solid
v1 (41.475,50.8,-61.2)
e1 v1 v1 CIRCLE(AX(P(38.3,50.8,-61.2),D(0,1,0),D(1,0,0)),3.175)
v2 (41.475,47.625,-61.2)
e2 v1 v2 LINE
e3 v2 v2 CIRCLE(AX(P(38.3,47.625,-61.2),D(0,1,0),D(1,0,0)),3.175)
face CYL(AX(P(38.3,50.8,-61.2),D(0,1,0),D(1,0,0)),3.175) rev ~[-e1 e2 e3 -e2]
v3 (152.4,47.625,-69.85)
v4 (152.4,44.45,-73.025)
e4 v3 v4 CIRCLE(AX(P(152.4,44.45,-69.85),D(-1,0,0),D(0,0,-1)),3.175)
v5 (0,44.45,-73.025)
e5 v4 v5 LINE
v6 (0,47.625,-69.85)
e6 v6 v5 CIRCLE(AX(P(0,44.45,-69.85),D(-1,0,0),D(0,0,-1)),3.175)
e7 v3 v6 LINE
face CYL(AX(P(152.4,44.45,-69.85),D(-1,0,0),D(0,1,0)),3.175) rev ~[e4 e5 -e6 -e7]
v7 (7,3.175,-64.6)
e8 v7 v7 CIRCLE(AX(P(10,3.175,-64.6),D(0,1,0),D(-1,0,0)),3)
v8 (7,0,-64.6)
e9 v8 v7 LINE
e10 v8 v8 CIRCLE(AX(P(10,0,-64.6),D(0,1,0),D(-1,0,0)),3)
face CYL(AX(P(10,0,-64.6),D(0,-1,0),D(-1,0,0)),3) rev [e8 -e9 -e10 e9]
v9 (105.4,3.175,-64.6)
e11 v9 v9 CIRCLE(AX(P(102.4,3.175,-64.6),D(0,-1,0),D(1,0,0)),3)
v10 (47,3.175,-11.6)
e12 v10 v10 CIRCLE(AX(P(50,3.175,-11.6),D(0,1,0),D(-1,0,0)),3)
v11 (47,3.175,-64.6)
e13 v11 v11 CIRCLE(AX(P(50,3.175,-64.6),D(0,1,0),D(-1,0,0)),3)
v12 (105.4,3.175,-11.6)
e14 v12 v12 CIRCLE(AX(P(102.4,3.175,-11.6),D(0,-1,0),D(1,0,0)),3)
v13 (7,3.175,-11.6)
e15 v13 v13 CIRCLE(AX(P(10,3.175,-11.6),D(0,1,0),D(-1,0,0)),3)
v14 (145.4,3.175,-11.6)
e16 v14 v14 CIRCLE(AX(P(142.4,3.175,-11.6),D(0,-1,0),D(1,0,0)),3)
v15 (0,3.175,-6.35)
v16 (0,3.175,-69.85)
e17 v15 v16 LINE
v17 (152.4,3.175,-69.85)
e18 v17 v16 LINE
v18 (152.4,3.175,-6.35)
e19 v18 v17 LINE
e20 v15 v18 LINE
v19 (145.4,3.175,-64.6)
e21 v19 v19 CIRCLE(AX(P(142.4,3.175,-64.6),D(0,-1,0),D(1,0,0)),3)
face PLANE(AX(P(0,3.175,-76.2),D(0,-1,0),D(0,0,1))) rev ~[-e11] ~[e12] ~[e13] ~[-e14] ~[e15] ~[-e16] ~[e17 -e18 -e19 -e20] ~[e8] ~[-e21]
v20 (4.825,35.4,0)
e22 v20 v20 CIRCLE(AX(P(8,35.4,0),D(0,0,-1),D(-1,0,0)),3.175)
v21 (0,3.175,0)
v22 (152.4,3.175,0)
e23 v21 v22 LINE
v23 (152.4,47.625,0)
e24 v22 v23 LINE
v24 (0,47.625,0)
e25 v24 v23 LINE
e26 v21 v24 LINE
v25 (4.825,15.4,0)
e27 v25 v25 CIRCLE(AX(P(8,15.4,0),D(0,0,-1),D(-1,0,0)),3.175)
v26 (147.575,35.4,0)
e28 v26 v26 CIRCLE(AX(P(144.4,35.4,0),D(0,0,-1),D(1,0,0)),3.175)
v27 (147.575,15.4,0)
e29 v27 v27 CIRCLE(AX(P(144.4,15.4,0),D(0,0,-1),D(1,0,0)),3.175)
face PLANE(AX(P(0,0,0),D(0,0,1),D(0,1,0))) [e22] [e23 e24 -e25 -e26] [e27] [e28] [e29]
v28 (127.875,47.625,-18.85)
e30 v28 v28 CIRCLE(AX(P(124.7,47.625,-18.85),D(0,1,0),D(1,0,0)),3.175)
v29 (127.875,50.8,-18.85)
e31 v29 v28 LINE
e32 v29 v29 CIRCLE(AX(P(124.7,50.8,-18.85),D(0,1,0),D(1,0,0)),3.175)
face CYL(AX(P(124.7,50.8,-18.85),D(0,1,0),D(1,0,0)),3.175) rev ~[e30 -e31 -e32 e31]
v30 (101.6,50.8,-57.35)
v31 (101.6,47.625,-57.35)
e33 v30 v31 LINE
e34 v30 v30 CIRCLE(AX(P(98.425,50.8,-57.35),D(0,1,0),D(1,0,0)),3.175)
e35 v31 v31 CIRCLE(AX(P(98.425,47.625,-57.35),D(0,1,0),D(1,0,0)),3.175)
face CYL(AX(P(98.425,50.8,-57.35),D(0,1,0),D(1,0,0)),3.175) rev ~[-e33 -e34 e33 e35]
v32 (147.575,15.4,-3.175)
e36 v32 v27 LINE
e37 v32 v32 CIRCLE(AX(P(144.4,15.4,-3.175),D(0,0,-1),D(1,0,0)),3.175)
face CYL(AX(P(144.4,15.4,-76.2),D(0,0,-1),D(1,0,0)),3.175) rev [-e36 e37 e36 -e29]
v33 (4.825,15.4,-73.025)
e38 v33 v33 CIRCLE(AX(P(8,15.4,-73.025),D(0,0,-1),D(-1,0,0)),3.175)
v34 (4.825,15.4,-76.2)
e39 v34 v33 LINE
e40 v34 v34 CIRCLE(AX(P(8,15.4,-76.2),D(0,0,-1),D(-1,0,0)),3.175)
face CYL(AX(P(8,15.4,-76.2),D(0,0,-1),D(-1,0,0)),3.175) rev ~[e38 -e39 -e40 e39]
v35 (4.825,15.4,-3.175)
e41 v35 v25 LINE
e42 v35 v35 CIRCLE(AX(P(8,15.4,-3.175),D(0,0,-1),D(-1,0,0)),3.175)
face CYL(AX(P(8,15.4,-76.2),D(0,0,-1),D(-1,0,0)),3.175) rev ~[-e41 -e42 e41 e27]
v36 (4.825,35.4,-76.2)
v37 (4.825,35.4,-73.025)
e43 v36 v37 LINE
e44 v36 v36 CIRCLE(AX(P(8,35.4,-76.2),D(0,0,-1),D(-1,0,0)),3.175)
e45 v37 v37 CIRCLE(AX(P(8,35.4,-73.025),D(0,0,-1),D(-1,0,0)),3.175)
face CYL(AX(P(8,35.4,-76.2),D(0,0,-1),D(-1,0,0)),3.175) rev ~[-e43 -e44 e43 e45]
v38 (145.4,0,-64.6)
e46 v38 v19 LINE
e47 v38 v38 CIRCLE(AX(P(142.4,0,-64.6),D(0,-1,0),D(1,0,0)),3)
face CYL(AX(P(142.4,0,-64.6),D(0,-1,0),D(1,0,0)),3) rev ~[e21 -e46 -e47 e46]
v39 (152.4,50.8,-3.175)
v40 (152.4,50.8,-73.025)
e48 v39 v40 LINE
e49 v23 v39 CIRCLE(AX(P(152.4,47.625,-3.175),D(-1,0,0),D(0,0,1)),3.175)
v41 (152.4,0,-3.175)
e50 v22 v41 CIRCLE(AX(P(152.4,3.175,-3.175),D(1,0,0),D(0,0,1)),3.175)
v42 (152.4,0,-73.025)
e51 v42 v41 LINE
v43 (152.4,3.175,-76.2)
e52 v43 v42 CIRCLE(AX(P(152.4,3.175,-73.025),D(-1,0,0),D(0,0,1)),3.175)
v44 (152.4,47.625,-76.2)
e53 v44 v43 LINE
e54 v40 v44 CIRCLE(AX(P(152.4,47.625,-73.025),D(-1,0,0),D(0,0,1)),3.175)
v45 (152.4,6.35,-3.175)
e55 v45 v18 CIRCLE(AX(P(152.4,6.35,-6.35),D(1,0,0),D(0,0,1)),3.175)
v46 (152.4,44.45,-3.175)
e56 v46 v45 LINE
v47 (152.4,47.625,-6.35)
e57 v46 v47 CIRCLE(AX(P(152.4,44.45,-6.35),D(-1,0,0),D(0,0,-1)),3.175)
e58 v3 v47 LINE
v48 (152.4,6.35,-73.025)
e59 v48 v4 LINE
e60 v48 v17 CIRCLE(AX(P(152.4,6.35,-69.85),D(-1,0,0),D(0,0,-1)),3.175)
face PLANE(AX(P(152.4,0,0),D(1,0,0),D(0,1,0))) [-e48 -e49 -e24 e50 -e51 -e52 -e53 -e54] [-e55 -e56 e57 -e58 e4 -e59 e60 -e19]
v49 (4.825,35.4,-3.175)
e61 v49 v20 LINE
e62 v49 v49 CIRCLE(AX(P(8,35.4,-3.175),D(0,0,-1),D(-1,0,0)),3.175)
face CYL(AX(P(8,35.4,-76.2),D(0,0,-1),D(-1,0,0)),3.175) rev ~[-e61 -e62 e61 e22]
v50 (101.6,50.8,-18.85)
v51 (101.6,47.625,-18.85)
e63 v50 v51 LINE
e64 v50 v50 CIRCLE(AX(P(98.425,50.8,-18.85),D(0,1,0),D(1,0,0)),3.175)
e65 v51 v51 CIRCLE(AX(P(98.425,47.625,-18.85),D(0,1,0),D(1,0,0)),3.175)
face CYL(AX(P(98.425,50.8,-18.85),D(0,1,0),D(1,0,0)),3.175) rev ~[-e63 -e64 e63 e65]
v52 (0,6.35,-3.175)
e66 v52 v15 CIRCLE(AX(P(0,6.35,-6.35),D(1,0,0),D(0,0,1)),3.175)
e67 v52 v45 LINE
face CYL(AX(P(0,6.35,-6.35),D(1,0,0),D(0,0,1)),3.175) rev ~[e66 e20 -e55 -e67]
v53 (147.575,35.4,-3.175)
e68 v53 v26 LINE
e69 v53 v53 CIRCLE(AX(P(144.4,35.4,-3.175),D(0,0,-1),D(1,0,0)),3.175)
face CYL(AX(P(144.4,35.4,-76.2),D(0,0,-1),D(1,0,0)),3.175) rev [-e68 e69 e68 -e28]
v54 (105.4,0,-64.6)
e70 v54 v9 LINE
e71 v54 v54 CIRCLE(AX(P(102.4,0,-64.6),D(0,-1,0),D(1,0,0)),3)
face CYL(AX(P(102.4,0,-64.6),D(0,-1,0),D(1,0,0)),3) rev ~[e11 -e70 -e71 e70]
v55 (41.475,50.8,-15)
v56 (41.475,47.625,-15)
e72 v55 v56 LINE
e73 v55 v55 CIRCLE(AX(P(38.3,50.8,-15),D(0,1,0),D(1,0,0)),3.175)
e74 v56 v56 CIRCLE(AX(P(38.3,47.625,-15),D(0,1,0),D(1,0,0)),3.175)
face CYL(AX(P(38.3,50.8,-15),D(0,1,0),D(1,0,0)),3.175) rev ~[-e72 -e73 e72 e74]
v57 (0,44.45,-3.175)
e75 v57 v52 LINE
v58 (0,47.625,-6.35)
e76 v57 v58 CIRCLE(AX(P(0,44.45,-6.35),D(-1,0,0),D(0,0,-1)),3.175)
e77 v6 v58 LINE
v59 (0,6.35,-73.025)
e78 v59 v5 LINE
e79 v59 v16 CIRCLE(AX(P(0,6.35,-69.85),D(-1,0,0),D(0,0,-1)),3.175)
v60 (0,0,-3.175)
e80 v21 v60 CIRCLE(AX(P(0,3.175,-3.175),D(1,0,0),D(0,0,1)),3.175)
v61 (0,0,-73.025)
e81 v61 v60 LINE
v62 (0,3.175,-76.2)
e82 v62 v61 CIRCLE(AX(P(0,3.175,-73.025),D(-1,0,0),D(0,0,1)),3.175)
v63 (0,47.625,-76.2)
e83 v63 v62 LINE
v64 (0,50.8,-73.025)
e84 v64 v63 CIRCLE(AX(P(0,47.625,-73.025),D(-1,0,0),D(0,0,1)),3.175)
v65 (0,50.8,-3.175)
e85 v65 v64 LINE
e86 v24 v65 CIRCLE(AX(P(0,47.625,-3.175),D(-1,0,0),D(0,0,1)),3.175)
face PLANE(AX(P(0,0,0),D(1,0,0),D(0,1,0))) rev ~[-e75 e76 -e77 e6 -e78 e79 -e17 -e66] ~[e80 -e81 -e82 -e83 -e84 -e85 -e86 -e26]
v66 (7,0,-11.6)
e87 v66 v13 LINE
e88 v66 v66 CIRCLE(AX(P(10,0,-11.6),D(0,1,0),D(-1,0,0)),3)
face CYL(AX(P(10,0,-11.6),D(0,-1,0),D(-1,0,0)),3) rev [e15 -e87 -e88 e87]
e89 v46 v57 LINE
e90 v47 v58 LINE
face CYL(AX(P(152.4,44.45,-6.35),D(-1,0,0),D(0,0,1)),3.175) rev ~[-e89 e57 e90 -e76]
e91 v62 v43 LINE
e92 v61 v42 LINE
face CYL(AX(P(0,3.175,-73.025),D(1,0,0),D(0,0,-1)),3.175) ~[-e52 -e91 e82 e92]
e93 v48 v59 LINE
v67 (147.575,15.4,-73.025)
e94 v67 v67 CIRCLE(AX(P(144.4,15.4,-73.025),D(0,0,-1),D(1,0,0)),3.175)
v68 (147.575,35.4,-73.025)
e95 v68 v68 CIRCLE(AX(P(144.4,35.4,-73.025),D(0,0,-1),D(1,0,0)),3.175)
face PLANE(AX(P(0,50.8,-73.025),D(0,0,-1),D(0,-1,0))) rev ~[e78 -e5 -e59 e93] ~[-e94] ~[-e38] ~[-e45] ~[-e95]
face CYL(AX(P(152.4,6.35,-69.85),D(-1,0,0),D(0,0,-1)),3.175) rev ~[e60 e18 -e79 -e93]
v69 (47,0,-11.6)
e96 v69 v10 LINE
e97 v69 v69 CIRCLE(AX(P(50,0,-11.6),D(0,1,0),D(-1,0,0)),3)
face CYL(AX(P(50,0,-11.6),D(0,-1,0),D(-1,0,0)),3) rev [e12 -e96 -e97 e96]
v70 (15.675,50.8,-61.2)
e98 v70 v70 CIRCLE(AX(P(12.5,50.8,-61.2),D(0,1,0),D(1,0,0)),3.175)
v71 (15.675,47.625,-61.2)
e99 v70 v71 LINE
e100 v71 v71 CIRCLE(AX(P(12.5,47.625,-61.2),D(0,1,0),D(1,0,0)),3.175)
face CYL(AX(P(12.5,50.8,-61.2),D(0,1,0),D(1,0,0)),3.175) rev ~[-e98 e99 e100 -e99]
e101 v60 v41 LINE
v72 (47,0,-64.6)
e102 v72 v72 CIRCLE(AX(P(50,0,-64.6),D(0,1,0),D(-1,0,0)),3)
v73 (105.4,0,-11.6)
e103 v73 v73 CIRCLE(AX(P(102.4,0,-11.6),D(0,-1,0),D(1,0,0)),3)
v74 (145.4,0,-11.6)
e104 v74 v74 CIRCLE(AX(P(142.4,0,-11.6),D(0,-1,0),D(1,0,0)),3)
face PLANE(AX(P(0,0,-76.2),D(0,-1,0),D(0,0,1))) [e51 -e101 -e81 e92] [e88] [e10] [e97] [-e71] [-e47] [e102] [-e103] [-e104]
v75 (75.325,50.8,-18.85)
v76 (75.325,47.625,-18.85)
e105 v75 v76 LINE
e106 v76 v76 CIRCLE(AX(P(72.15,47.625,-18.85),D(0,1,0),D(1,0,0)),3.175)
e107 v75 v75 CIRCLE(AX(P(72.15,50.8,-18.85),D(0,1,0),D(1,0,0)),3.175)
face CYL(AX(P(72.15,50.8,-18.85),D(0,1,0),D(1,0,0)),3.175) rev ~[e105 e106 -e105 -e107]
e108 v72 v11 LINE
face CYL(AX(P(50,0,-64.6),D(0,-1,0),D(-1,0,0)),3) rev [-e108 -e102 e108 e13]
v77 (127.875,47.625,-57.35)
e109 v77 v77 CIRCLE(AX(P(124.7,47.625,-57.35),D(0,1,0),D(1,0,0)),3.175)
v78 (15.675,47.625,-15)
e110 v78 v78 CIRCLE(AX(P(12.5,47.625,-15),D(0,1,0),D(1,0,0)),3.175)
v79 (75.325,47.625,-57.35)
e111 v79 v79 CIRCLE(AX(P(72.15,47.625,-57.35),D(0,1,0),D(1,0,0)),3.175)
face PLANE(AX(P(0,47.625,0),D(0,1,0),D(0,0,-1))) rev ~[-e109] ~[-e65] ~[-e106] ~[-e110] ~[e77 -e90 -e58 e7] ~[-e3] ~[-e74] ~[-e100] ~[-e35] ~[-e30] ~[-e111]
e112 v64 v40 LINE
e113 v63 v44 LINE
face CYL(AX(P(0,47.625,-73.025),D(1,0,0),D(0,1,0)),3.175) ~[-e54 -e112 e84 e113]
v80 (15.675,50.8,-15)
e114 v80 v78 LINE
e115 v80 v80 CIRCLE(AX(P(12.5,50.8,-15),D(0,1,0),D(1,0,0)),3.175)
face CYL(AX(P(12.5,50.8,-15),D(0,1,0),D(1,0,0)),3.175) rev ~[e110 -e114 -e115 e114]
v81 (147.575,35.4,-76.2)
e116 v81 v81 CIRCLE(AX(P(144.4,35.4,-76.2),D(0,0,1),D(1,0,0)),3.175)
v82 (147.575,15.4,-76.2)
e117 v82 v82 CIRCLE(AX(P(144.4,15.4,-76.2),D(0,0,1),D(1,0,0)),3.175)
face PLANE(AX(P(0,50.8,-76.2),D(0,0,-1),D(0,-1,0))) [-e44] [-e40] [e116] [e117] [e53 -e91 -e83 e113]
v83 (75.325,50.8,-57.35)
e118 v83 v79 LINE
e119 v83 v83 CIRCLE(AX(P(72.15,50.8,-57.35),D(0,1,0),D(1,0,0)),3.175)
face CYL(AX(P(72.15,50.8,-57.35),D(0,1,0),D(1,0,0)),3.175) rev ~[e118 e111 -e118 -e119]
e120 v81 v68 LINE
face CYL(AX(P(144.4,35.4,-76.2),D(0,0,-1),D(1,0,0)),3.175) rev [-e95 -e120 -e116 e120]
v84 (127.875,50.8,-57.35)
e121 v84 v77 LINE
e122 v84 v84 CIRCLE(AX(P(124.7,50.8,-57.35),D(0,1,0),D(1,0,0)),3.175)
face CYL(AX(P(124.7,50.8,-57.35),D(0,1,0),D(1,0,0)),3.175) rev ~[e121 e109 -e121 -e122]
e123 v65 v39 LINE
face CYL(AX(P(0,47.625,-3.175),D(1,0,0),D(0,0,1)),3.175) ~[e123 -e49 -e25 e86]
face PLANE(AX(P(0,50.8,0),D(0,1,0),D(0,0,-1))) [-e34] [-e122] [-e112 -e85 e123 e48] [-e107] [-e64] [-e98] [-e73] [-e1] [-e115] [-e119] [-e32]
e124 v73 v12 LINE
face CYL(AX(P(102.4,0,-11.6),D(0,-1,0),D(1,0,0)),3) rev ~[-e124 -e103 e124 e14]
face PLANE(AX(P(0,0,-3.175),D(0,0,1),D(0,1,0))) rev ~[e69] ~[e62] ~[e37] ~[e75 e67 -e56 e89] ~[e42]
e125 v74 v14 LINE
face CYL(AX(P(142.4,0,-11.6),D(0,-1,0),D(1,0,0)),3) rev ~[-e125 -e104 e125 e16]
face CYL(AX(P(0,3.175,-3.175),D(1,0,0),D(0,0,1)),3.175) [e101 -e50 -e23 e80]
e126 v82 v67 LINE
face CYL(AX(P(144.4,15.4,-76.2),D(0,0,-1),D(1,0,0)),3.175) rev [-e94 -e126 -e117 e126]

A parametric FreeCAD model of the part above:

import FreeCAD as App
import Part
import Sketcher
Q = App.Units.Quantity


def edges_at(feature, points):
    """Names of the edges that pass closest to the given points."""
    edges = feature.Shape.Edges
    near = lambda p: min(range(len(edges)), key=lambda i: edges[i].distToShape(Part.Vertex(*p))[0])
    return sorted({f"Edge{near(p) + 1}" for p in points})


def faces_at(feature, points):
    """Names of the faces that lie closest to the given points."""
    faces = feature.Shape.Faces
    near = lambda p: min(range(len(faces)), key=lambda i: faces[i].distToShape(Part.Vertex(*p))[0])
    return sorted({f"Face{near(p) + 1}" for p in points})


def add_polygon(sketch, points):
    """Adds a closed chain of lines whose ends are joined by coincident constraints."""
    first, n = sketch.GeometryCount, len(points)
    for a, b in zip(points, points[1:] + points[:1]):
        sketch.addGeometry(Part.LineSegment(App.Vector(*a, 0), App.Vector(*b, 0)), False)
    for i in range(n):
        sketch.addConstraint(Sketcher.Constraint("Coincident", first + i, 2, first + (i + 1) % n, 1))

doc = App.newDocument("Part")
body = doc.addObject("PartDesign::Body", "Body")

# Sketch on YZ plane
sketch1 = body.newObject("Sketcher::SketchObject", "Sketch")
sketch1.AttachmentSupport = (doc.getObject("YZ_Plane"), [""])
sketch1.MapMode = "FlatFace"
add_polygon(sketch1, [(51, 0), (0, 0), (0, -76), (51, -76)])  # lines 0-3
sketch1.addConstraint([
    Sketcher.Constraint("Horizontal", 0),
    Sketcher.Constraint("Vertical", 1),
    Sketcher.Constraint("Horizontal", 2),
    Sketcher.Constraint("Vertical", 3),
    Sketcher.Constraint("Coincident", 0, 2, -1, 1),
    Sketcher.Constraint("DistanceX", 0, 2, 0, 1, Q("2 in")),
    Sketcher.Constraint("DistanceY", 1, 2, 1, 1, Q("3 in")),
])
pad1 = body.newObject("PartDesign::Pad", "Pad")
pad1.Profile = sketch1
pad1.Length = Q("6 in")
doc.recompute()

thickness = body.newObject("PartDesign::Thickness", "Thickness")
thickness.Base = (pad1, faces_at(pad1, [(0, 33.867, -50.8), (152.4, 33.867, -50.8)]))
thickness.Value = Q("0.125 in")
thickness.Reversed = True
thickness.Join = "Intersection"
doc.recompute()

fillet = body.newObject("PartDesign::Fillet", "Fillet")
fillet.Base = (thickness, edges_at(thickness, [
    (76.2, 50.8, -76.2),
    (76.2, 50.8, 0),
    (76.2, 0, -76.2),
    (76.2, 0, 0),
    (76.2, 3.175, -3.175),
    (76.2, 3.175, -73.025),
    (76.2, 47.625, -3.175),
    (76.2, 47.625, -73.025),
]))
fillet.Radius = Q("0.125 in")

# Sketch on XZ plane
sketch2 = body.newObject("Sketcher::SketchObject", "Sketch001")
sketch2.AttachmentSupport = (doc.getObject("XZ_Plane"), [""])
sketch2.MapMode = "FlatFace"
sketch2.addGeometry([
    Part.Circle(App.Vector(142.4, -11.6, 0), App.Vector(0, 0, 1), 3),
    Part.Circle(App.Vector(142.4, -64.6, 0), App.Vector(0, 0, 1), 3),
    Part.Circle(App.Vector(102.4, -11.6, 0), App.Vector(0, 0, 1), 3),
    Part.Circle(App.Vector(102.4, -64.6, 0), App.Vector(0, 0, 1), 3),
], False)
sketch2.addConstraint([
    Sketcher.Constraint("Equal", 0, 1),
    Sketcher.Constraint("Equal", 1, 2),
    Sketcher.Constraint("Equal", 2, 3),
    Sketcher.Constraint("Horizontal", 0, 3, 2, 3),
    Sketcher.Constraint("Horizontal", 1, 3, 3, 3),
    Sketcher.Constraint("Vertical", 0, 3, 1, 3),
    Sketcher.Constraint("Vertical", 2, 3, 3, 3),
    Sketcher.Constraint("Diameter", 0, Q("6 mm")),
    Sketcher.Constraint("DistanceX", 2, 3, 0, 3, Q("1.5748 in")),
    Sketcher.Constraint("DistanceY", 1, 3, 0, 3, Q("53 mm")),
    Sketcher.Constraint("DistanceX", -1, 1, 0, 3, Q("5.6063 in")),
    Sketcher.Constraint("DistanceY", 0, 3, -1, 1, Q("0.4567 in")),
])
pocket1 = body.newObject("PartDesign::Pocket", "Pocket")
pocket1.Profile = sketch2
pocket1.Length = Q("0.125 in")
doc.recompute()

datumplane = body.newObject("PartDesign::Plane", "DatumPlane")
datumplane.AttachmentSupport = (doc.getObject("YZ_Plane"), [""])
datumplane.MapMode = "FlatFace"
datumplane.AttachmentOffset = App.Placement(App.Vector(0, 0, 3 * 25.4), App.Rotation())
mirrored = body.newObject("PartDesign::Mirrored", "Mirrored")
mirrored.Originals = [pocket1]
mirrored.MirrorPlane = (datumplane, [""])
body.Tip = mirrored

# Sketch on XZ plane
sketch3 = body.newObject("Sketcher::SketchObject", "Sketch002")
sketch3.AttachmentSupport = (doc.getObject("XZ_Plane"), [""])
sketch3.MapMode = "FlatFace"
sketch3.AttachmentOffset = App.Placement(App.Vector(0, 0, -2 * 25.4), App.Rotation())
sketch3.addGeometry([
    Part.Circle(App.Vector(12.5, -61.2, 0), App.Vector(0, 0, 1), 3.2),
    Part.Circle(App.Vector(38.3, -61.2, 0), App.Vector(0, 0, 1), 3.2),
    Part.Circle(App.Vector(12.5, -15, 0), App.Vector(0, 0, 1), 3.2),
    Part.Circle(App.Vector(38.3, -15, 0), App.Vector(0, 0, 1), 3.2),
], False)
sketch3.addConstraint([
    Sketcher.Constraint("Equal", 0, 1),
    Sketcher.Constraint("Equal", 1, 2),
    Sketcher.Constraint("Equal", 2, 3),
    Sketcher.Constraint("Horizontal", 0, 3, 1, 3),
    Sketcher.Constraint("Horizontal", 2, 3, 3, 3),
    Sketcher.Constraint("Vertical", 0, 3, 2, 3),
    Sketcher.Constraint("Vertical", 1, 3, 3, 3),
    Sketcher.Constraint("Diameter", 0, Q("0.25 in")),
    Sketcher.Constraint("DistanceX", -1, 1, 0, 3, Q("12.5 mm")),
    Sketcher.Constraint("DistanceY", 2, 3, -1, 1, Q("15 mm")),
    Sketcher.Constraint("DistanceY", 0, 3, 2, 3, Q("1.8189 in")),
    Sketcher.Constraint("DistanceX", -1, 1, 1, 3, Q("38.3 mm")),
])
pocket2 = body.newObject("PartDesign::Pocket", "Pocket001")
pocket2.Profile = sketch3
pocket2.Length = Q("0.125 in")
pocket2.Reversed = True

# Sketch on XZ plane
sketch4 = body.newObject("Sketcher::SketchObject", "Sketch003")
sketch4.AttachmentSupport = (doc.getObject("XZ_Plane"), [""])
sketch4.MapMode = "FlatFace"
sketch4.AttachmentOffset = App.Placement(App.Vector(0, 0, -2 * 25.4), App.Rotation())
sketch4.addGeometry([
    Part.Circle(App.Vector(72.2, -57.4, 0), App.Vector(0, 0, 1), 3.2),  # 0
    Part.Circle(App.Vector(72.2, -18.9, 0), App.Vector(0, 0, 1), 3.2),  # 1
    Part.Circle(App.Vector(98.4, -18.9, 0), App.Vector(0, 0, 1), 3.2),  # 2
    Part.Circle(App.Vector(98.4, -57.4, 0), App.Vector(0, 0, 1), 3.2),  # 3
    Part.Circle(App.Vector(124.7, -57.4, 0), App.Vector(0, 0, 1), 3.2),  # 4
    Part.Circle(App.Vector(124.7, -18.9, 0), App.Vector(0, 0, 1), 3.2),  # 5
], False)
sketch4.addConstraint([
    Sketcher.Constraint("Equal", 0, 1),
    Sketcher.Constraint("Equal", 1, 2),
    Sketcher.Constraint("Equal", 2, 3),
    Sketcher.Constraint("Equal", 3, 4),
    Sketcher.Constraint("Equal", 4, 5),
    Sketcher.Constraint("Horizontal", 1, 3, 2, 3),
    Sketcher.Constraint("Horizontal", 0, 3, 3, 3),
    Sketcher.Constraint("Horizontal", 3, 3, 4, 3),
    Sketcher.Constraint("Horizontal", 2, 3, 5, 3),
    Sketcher.Constraint("Vertical", 0, 3, 1, 3),
    Sketcher.Constraint("Vertical", 2, 3, 3, 3),
    Sketcher.Constraint("Vertical", 4, 3, 5, 3),
    Sketcher.Constraint("Diameter", 0, Q("0.25 in")),
    Sketcher.Constraint("DistanceX", -1, 1, 2, 3, Q("3.875 in")),
    Sketcher.Constraint("DistanceX", 0, 3, 4, 3, Q("2.0689 in")),
    Sketcher.Constraint("DistanceX", -1, 1, 0, 3, Q("72.15 mm")),
    Sketcher.Constraint("DistanceY", 0, 3, -1, 1, Q("57.35 mm")),
    Sketcher.Constraint("DistanceY", 1, 3, -1, 1, Q("18.85 mm")),
])
pocket3 = body.newObject("PartDesign::Pocket", "Pocket002")
pocket3.Profile = sketch4
pocket3.Length = Q("0.125 in")
pocket3.Reversed = True

# Sketch on XY plane
sketch5 = body.newObject("Sketcher::SketchObject", "Sketch004")
sketch5.AttachmentSupport = (doc.getObject("XY_Plane"), [""])
sketch5.MapMode = "FlatFace"
sketch5.AttachmentOffset = App.Placement(App.Vector(0, 0, -3 * 25.4), App.Rotation())
sketch5.addGeometry([
    Part.Circle(App.Vector(8, 35.4, 0), App.Vector(0, 0, 1), 3.2),
    Part.Circle(App.Vector(8, 15.4, 0), App.Vector(0, 0, 1), 3.2),
], False)
sketch5.addConstraint([
    Sketcher.Constraint("Equal", 0, 1),
    Sketcher.Constraint("Vertical", 0, 3, 1, 3),
    Sketcher.Constraint("Diameter", 0, Q("0.25 in")),
    Sketcher.Constraint("DistanceY", 1, 3, 0, 3, Q("0.7874 in")),
    Sketcher.Constraint("DistanceY", -1, 1, 0, 3, Q("1.3937 in")),
    Sketcher.Constraint("DistanceX", -1, 1, 0, 3, Q("8 mm")),
])
pocket4 = body.newObject("PartDesign::Pocket", "Pocket003")
pocket4.Profile = sketch5
pocket4.Type = "ThroughAll"
pocket4.Reversed = True
doc.recompute()

datumplane2 = body.newObject("PartDesign::Plane", "DatumPlane001")
datumplane2.AttachmentSupport = (doc.getObject("YZ_Plane"), [""])
datumplane2.MapMode = "FlatFace"
datumplane2.AttachmentOffset = App.Placement(App.Vector(0, 0, 3 * 25.4), App.Rotation())
mirrored2 = body.newObject("PartDesign::Mirrored", "Mirrored001")
mirrored2.Originals = [pocket4]
mirrored2.MirrorPlane = (datumplane2, [""])
body.Tip = mirrored2

doc.recompute()
